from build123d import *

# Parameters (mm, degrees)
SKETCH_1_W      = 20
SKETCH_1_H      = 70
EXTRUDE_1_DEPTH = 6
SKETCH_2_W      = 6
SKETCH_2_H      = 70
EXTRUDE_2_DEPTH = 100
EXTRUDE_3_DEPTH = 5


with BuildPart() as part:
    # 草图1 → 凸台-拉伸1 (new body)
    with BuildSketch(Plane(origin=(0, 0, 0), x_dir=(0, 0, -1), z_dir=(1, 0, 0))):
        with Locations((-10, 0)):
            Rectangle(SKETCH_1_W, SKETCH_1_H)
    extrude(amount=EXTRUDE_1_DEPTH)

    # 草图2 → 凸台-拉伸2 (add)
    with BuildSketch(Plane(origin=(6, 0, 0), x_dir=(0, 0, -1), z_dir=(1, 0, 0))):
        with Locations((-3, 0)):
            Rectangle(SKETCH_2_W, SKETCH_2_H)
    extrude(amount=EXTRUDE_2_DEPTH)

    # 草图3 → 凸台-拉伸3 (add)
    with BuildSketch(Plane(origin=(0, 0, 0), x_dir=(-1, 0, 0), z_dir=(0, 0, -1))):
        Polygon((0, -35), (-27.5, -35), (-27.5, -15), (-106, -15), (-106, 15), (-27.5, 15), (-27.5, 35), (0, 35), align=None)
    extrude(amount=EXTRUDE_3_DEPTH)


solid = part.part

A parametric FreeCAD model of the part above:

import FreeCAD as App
import Part
import Sketcher
Q = App.Units.Quantity

doc = App.newDocument("Part")
params = doc.addObject("Spreadsheet::Sheet", "Params")
for row, (alias, value) in enumerate([
    ("sketch1_width", "70 mm"),
    ("sketch1_height", "20 mm"),
    ("pad1_length", "6 mm"),
    ("sketch2_width", "70 mm"),
    ("sketch2_height", "6 mm"),
    ("pad2_length", "100 mm"),
    ("sketch3_height", "70 mm"),
    ("sketch3_height2", "20 mm"),
    ("sketch3_width", "27.5 mm"),
    ("sketch3_width2", "78.5 mm"),
    ("pad3_length", "5 mm"),
], start=1):
    params.set(f"A{row}", alias)
    params.set(f"B{row}", "=" + value)
    params.setAlias(f"B{row}", alias)

body = doc.addObject("PartDesign::Body", "Body")

sketch1 = body.newObject("Sketcher::SketchObject", "Sketch")
sketch1.AttachmentSupport = (doc.getObject("YZ_Plane"), [""])
sketch1.MapMode = "FlatFace"
sketch1.addGeometry(Part.LineSegment(App.Vector(35, 20, 0), App.Vector(-35, 20, 0)), False)
sketch1.addGeometry(Part.LineSegment(App.Vector(-35, 20, 0), App.Vector(-35, 0, 0)), False)
sketch1.addGeometry(Part.LineSegment(App.Vector(-35, 0, 0), App.Vector(35, 0, 0)), False)
sketch1.addGeometry(Part.LineSegment(App.Vector(35, 0, 0), App.Vector(35, 20, 0)), False)
sketch1.addConstraint(Sketcher.Constraint("Coincident", 0, 2, 1, 1))
sketch1.addConstraint(Sketcher.Constraint("Coincident", 1, 2, 2, 1))
sketch1.addConstraint(Sketcher.Constraint("Coincident", 2, 2, 3, 1))
sketch1.addConstraint(Sketcher.Constraint("Coincident", 3, 2, 0, 1))
sketch1.addConstraint(Sketcher.Constraint("Horizontal", 0))
sketch1.addConstraint(Sketcher.Constraint("Vertical", 1))
sketch1.addConstraint(Sketcher.Constraint("Horizontal", 2))
sketch1.addConstraint(Sketcher.Constraint("Vertical", 3))
sketch1.addConstraint(Sketcher.Constraint("Symmetric", 1, 2, 2, 2, -1, 1))
sketch1.addConstraint(Sketcher.Constraint("DistanceX", 0, 2, 0, 1, Q("70 mm")))
sketch1.addConstraint(Sketcher.Constraint("DistanceY", 1, 2, 1, 1, Q("20 mm")))
sketch1.setExpression("Constraints[9]", "Params.sketch1_width")
sketch1.setExpression("Constraints[10]", "Params.sketch1_height")
pad1 = body.newObject("PartDesign::Pad", "Pad")
pad1.Profile = sketch1
pad1.setExpression("Length", "Params.pad1_length")

sketch2 = body.newObject("Sketcher::SketchObject", "Sketch001")
sketch2.AttachmentSupport = (doc.getObject("YZ_Plane"), [""])
sketch2.MapMode = "FlatFace"
sketch2.AttachmentOffset = App.Placement(App.Vector(0, 0, 6), App.Rotation())
sketch2.addGeometry(Part.LineSegment(App.Vector(35, 6, 0), App.Vector(-35, 6, 0)), False)
sketch2.addGeometry(Part.LineSegment(App.Vector(-35, 6, 0), App.Vector(-35, 0, 0)), False)
sketch2.addGeometry(Part.LineSegment(App.Vector(-35, 0, 0), App.Vector(35, 0, 0)), False)
sketch2.addGeometry(Part.LineSegment(App.Vector(35, 0, 0), App.Vector(35, 6, 0)), False)
sketch2.addConstraint(Sketcher.Constraint("Coincident", 0, 2, 1, 1))
sketch2.addConstraint(Sketcher.Constraint("Coincident", 1, 2, 2, 1))
sketch2.addConstraint(Sketcher.Constraint("Coincident", 2, 2, 3, 1))
sketch2.addConstraint(Sketcher.Constraint("Coincident", 3, 2, 0, 1))
sketch2.addConstraint(Sketcher.Constraint("Horizontal", 0))
sketch2.addConstraint(Sketcher.Constraint("Vertical", 1))
sketch2.addConstraint(Sketcher.Constraint("Horizontal", 2))
sketch2.addConstraint(Sketcher.Constraint("Vertical", 3))
sketch2.addConstraint(Sketcher.Constraint("Symmetric", 1, 2, 2, 2, -1, 1))
sketch2.addConstraint(Sketcher.Constraint("DistanceX", 0, 2, 0, 1, Q("70 mm")))
sketch2.addConstraint(Sketcher.Constraint("DistanceY", 1, 2, 1, 1, Q("6 mm")))
sketch2.setExpression("Constraints[9]", "Params.sketch2_width")
sketch2.setExpression("Constraints[10]", "Params.sketch2_height")
pad2 = body.newObject("PartDesign::Pad", "Pad001")
pad2.Profile = sketch2
pad2.setExpression("Length", "Params.pad2_length")

sketch3 = body.newObject("Sketcher::SketchObject", "Sketch002")
sketch3.AttachmentSupport = (doc.getObject("XY_Plane"), [""])
sketch3.MapMode = "FlatFace"
sketch3.addGeometry(Part.LineSegment(App.Vector(28, -35, 0), App.Vector(0, -35, 0)), False)
sketch3.addGeometry(Part.LineSegment(App.Vector(0, -35, 0), App.Vector(0, 35, 0)), False)
sketch3.addGeometry(Part.LineSegment(App.Vector(0, 35, 0), App.Vector(28, 35, 0)), False)
sketch3.addGeometry(Part.LineSegment(App.Vector(28, 35, 0), App.Vector(28, 15, 0)), False)
sketch3.addGeometry(Part.LineSegment(App.Vector(28, 15, 0), App.Vector(106, 15, 0)), False)
sketch3.addGeometry(Part.LineSegment(App.Vector(106, 15, 0), App.Vector(106, -15, 0)), False)
sketch3.addGeometry(Part.LineSegment(App.Vector(106, -15, 0), App.Vector(28, -15, 0)), False)
sketch3.addGeometry(Part.LineSegment(App.Vector(28, -15, 0), App.Vector(28, -35, 0)), False)
sketch3.addConstraint(Sketcher.Constraint("Coincident", 0, 2, 1, 1))
sketch3.addConstraint(Sketcher.Constraint("Coincident", 1, 2, 2, 1))
sketch3.addConstraint(Sketcher.Constraint("Coincident", 2, 2, 3, 1))
sketch3.addConstraint(Sketcher.Constraint("Coincident", 3, 2, 4, 1))
sketch3.addConstraint(Sketcher.Constraint("Coincident", 4, 2, 5, 1))
sketch3.addConstraint(Sketcher.Constraint("Coincident", 5, 2, 6, 1))
sketch3.addConstraint(Sketcher.Constraint("Coincident", 6, 2, 7, 1))
sketch3.addConstraint(Sketcher.Constraint("Coincident", 7, 2, 0, 1))
sketch3.addConstraint(Sketcher.Constraint("Horizontal", 0))
sketch3.addConstraint(Sketcher.Constraint("Vertical", 1))
sketch3.addConstraint(Sketcher.Constraint("Horizontal", 2))
sketch3.addConstraint(Sketcher.Constraint("Vertical", 3))
sketch3.addConstraint(Sketcher.Constraint("Horizontal", 4))
sketch3.addConstraint(Sketcher.Constraint("Vertical", 5))
sketch3.addConstraint(Sketcher.Constraint("Horizontal", 6))
sketch3.addConstraint(Sketcher.Constraint("Vertical", 7))
sketch3.addConstraint(Sketcher.Constraint("Symmetric", 0, 2, 1, 2, -1, 1))
sketch3.addConstraint(Sketcher.Constraint("Symmetric", 3, 2, 6, 2, -1))
sketch3.addConstraint(Sketcher.Constraint("DistanceY", 1, 1, 1, 2, Q("70 mm")))
sketch3.addConstraint(Sketcher.Constraint("DistanceY", 3, 2, 3, 1, Q("20 mm")))
sketch3.addConstraint(Sketcher.Constraint("DistanceX", 0, 2, 0, 1, Q("27.5 mm")))
sketch3.addConstraint(Sketcher.Constraint("DistanceX", 4, 1, 4, 2, Q("78.5 mm")))
sketch3.setExpression("Constraints[18]", "Params.sketch3_height")
sketch3.setExpression("Constraints[19]", "Params.sketch3_height2")
sketch3.setExpression("Constraints[20]", "Params.sketch3_width")
sketch3.setExpression("Constraints[21]", "Params.sketch3_width2")
pad3 = body.newObject("PartDesign::Pad", "Pad002")
pad3.Profile = sketch3
pad3.setExpression("Length", "Params.pad3_length")
pad3.Reversed = True

doc.recompute()
